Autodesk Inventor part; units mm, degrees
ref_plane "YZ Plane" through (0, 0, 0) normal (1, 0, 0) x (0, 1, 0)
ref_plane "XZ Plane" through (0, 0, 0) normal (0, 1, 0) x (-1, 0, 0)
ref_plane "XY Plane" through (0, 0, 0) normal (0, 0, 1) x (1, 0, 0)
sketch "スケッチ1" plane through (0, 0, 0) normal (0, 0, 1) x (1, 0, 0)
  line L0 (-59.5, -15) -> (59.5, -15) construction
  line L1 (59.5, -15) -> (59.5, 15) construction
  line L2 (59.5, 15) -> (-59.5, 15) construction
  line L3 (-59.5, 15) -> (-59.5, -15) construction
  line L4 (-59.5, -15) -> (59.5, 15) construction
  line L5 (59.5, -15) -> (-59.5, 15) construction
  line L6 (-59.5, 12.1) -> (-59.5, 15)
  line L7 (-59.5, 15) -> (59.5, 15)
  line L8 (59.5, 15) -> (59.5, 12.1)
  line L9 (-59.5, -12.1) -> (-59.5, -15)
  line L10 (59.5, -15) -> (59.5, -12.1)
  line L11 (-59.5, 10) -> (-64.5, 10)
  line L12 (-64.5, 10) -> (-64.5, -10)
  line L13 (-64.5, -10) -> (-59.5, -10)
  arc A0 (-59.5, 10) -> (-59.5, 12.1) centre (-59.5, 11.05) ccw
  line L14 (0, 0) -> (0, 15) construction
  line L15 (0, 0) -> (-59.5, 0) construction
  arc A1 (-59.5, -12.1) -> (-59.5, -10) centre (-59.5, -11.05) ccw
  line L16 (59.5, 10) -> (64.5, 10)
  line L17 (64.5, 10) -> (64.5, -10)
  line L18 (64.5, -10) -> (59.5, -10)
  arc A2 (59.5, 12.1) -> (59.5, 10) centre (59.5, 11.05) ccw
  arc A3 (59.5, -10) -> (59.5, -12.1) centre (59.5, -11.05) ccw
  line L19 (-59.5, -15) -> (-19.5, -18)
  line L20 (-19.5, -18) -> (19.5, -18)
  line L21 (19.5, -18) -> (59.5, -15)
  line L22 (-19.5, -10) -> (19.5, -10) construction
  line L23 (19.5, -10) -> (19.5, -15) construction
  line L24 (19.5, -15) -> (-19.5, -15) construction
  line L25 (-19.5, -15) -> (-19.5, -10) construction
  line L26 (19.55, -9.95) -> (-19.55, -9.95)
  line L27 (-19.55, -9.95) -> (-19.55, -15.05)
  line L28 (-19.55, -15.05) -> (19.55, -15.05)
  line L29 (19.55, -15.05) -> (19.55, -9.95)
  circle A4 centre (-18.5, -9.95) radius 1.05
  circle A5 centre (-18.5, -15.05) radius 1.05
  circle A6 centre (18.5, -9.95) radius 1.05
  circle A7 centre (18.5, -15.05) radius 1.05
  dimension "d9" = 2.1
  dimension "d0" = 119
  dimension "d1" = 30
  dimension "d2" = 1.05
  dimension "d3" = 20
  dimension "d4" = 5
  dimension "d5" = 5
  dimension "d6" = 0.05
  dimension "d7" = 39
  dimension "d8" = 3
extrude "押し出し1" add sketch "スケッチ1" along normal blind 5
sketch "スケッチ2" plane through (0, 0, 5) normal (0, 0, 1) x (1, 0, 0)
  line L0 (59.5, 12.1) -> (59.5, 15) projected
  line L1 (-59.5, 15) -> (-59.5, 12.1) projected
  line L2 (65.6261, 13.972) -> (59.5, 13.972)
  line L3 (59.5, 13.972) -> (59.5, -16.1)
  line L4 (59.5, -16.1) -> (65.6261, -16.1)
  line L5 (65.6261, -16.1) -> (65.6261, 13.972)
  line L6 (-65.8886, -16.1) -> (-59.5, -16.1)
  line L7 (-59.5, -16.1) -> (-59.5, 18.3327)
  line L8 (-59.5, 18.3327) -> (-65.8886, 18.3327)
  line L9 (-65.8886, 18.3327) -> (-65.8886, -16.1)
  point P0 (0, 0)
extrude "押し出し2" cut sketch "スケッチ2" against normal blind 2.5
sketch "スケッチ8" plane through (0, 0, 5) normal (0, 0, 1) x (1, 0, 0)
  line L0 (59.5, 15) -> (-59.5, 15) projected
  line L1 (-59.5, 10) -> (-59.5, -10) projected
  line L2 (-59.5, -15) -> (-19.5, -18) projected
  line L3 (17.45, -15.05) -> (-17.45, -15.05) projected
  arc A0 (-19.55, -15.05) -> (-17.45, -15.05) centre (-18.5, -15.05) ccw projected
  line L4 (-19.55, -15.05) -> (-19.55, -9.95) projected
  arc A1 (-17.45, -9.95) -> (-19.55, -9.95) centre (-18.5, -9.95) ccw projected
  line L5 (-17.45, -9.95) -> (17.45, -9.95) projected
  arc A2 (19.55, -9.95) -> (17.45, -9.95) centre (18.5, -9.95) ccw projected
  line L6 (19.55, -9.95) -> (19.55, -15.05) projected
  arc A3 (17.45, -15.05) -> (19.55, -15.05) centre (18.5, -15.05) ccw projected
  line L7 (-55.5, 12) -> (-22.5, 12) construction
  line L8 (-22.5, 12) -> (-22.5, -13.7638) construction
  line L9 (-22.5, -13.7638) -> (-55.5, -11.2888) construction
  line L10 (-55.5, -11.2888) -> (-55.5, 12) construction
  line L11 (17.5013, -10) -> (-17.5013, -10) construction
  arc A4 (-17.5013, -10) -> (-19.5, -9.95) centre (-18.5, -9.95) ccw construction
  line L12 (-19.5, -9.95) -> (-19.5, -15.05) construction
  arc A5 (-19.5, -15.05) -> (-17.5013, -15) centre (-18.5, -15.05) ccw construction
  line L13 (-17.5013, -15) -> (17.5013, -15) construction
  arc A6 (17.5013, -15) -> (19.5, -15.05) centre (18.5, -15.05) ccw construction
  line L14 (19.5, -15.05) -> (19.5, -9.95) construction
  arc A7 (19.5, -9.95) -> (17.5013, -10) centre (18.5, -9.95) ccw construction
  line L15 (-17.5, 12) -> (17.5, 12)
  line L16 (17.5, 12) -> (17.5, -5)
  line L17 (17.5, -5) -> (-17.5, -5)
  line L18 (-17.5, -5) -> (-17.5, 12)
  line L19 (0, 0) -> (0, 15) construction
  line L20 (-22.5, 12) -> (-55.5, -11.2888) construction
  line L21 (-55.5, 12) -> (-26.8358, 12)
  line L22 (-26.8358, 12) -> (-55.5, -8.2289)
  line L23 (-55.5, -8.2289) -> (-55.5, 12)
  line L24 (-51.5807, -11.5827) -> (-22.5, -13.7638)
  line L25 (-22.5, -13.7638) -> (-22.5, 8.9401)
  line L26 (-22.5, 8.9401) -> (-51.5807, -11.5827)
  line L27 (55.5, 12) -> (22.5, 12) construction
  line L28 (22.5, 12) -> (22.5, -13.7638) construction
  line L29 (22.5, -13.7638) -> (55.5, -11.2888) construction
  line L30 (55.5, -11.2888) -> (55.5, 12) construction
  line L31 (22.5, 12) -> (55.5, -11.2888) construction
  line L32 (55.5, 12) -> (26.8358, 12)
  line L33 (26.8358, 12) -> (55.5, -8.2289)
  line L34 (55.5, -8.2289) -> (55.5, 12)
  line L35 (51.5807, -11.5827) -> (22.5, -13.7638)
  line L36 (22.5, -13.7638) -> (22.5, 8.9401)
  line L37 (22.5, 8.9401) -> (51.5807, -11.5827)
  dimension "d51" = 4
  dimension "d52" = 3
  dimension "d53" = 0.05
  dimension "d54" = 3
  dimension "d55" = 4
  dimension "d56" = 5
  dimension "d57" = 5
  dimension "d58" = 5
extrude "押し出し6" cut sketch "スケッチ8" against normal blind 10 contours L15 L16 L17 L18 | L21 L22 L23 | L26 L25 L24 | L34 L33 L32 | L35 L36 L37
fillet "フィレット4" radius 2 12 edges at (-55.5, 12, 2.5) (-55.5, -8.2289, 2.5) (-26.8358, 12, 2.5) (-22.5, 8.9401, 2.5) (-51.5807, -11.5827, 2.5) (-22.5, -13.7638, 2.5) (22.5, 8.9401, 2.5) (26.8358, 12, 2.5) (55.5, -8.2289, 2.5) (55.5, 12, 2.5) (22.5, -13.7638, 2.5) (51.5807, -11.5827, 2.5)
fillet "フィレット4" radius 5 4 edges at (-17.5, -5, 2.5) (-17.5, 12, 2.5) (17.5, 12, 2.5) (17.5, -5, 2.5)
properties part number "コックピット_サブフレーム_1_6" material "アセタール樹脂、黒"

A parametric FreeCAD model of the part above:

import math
import FreeCAD as App
import Part
import Sketcher

V = App.Vector
Q = App.Units.Quantity


def edges_at(feature, points):
    """Names of the edges that pass closest to the given points."""
    edges = feature.Shape.Edges
    near = lambda p: min(range(len(edges)), key=lambda i: edges[i].distToShape(Part.Vertex(*p))[0])
    return sorted({f"Edge{near(p) + 1}" for p in points})


def add_polygon(sketch, points):
    """Adds a closed chain of lines whose ends are joined by coincident constraints."""
    first, n = sketch.GeometryCount, len(points)
    for a, b in zip(points, points[1:] + points[:1]):
        sketch.addGeometry(Part.LineSegment(App.Vector(*a, 0), App.Vector(*b, 0)), False)
    for i in range(n):
        sketch.addConstraint(Sketcher.Constraint("Coincident", first + i, 2, first + (i + 1) % n, 1))

doc = App.newDocument("Part")
body = doc.addObject("PartDesign::Body", "Body")

sketch1 = body.newObject("Sketcher::SketchObject", "Sketch")
sketch1.AttachmentSupport = (doc.getObject("XY_Plane"), [""])
sketch1.MapMode = "FlatFace"
sketch1.addGeometry([
    Part.LineSegment(V(-59.5, 15, 0), V(-59.5, 12.1, 0)),
    Part.ArcOfCircle(Part.Circle(V(-59.5, 11.05, 0), V(0, 0, 1), 1.05), math.radians(-90), math.radians(90)),
    Part.LineSegment(V(-59.5, 10, 0), V(-64.5, 10, 0)),
    Part.LineSegment(V(-64.5, 10, 0), V(-64.5, -10, 0)),
    Part.LineSegment(V(-64.5, -10, 0), V(-59.5, -10, 0)),
    Part.ArcOfCircle(Part.Circle(V(-59.5, -11.05, 0), V(0, 0, 1), 1.05), math.radians(-90), math.radians(90)),
    Part.LineSegment(V(-59.5, -12.1, 0), V(-59.5, -15, 0)),
    Part.LineSegment(V(-59.5, -15, 0), V(-19.5, -18, 0)),
    Part.LineSegment(V(-19.5, -18, 0), V(19.5, -18, 0)),
    Part.LineSegment(V(19.5, -18, 0), V(59.5, -15, 0)),
    Part.LineSegment(V(59.5, -15, 0), V(59.5, -12.1, 0)),
    Part.ArcOfCircle(Part.Circle(V(59.5, -11.05, 0), V(0, 0, 1), 1.05), math.radians(90), math.radians(270)),
    Part.LineSegment(V(59.5, -10, 0), V(64.5, -10, 0)),
    Part.LineSegment(V(64.5, -10, 0), V(64.5, 10, 0)),
    Part.LineSegment(V(64.5, 10, 0), V(59.5, 10, 0)),
    Part.ArcOfCircle(Part.Circle(V(59.5, 11.05, 0), V(0, 0, 1), 1.05), math.radians(90), math.radians(270)),
    Part.LineSegment(V(59.5, 12.1, 0), V(59.5, 15, 0)),
    Part.LineSegment(V(59.5, 15, 0), V(-59.5, 15, 0)),
    Part.ArcOfCircle(Part.Circle(V(-18.5, -9.95, 0), V(0, 0, 1), 1.05), math.radians(0), math.radians(180)),
    Part.LineSegment(V(-17.45, -9.95, 0), V(17.45, -9.95, 0)),
    Part.ArcOfCircle(Part.Circle(V(18.5, -9.95, 0), V(0, 0, 1), 1.05), math.radians(0), math.radians(180)),
    Part.LineSegment(V(19.55, -9.95, 0), V(19.55, -15.05, 0)),
    Part.ArcOfCircle(Part.Circle(V(18.5, -15.05, 0), V(0, 0, 1), 1.05), math.radians(180), math.radians(360)),
    Part.LineSegment(V(17.45, -15.05, 0), V(-17.45, -15.05, 0)),
    Part.ArcOfCircle(Part.Circle(V(-18.5, -15.05, 0), V(0, 0, 1), 1.05), math.radians(180), math.radians(360)),
    Part.LineSegment(V(-19.55, -15.05, 0), V(-19.55, -9.95, 0)),
], False)
sketch1.addConstraint([
    Sketcher.Constraint("Coincident", 0, 2, 1, 2),
    Sketcher.Constraint("Tangent", 1, 1, 2, 1),
    Sketcher.Constraint("Coincident", 2, 2, 3, 1),
    Sketcher.Constraint("Coincident", 3, 2, 4, 1),
    Sketcher.Constraint("Tangent", 4, 2, 5, 2),
    Sketcher.Constraint("Coincident", 5, 1, 6, 1),
    Sketcher.Constraint("Coincident", 6, 2, 7, 1),
    Sketcher.Constraint("Coincident", 7, 2, 8, 1),
    Sketcher.Constraint("Coincident", 8, 2, 9, 1),
    Sketcher.Constraint("Coincident", 9, 2, 10, 1),
    Sketcher.Constraint("Coincident", 10, 2, 11, 2),
    Sketcher.Constraint("Tangent", 11, 1, 12, 1),
    Sketcher.Constraint("Coincident", 12, 2, 13, 1),
    Sketcher.Constraint("Coincident", 13, 2, 14, 1),
    Sketcher.Constraint("Tangent", 14, 2, 15, 2),
    Sketcher.Constraint("Coincident", 15, 1, 16, 1),
    Sketcher.Constraint("Coincident", 16, 2, 17, 1),
    Sketcher.Constraint("Coincident", 17, 2, 0, 1),
    Sketcher.Constraint("Coincident", 18, 1, 19, 1),
    Sketcher.Constraint("Coincident", 19, 2, 20, 2),
    Sketcher.Constraint("Tangent", 20, 1, 21, 1),
    Sketcher.Constraint("Tangent", 21, 2, 22, 2),
    Sketcher.Constraint("Coincident", 22, 1, 23, 1),
    Sketcher.Constraint("Coincident", 23, 2, 24, 2),
    Sketcher.Constraint("Tangent", 24, 1, 25, 1),
    Sketcher.Constraint("Tangent", 25, 2, 18, 2),
    Sketcher.Constraint("Vertical", 0),
    Sketcher.Constraint("Horizontal", 2),
    Sketcher.Constraint("Vertical", 3),
    Sketcher.Constraint("Horizontal", 4),
    Sketcher.Constraint("Vertical", 6),
    Sketcher.Constraint("Horizontal", 8),
    Sketcher.Constraint("Vertical", 10),
    Sketcher.Constraint("Horizontal", 12),
    Sketcher.Constraint("Vertical", 13),
    Sketcher.Constraint("Horizontal", 14),
    Sketcher.Constraint("Vertical", 16),
    Sketcher.Constraint("Horizontal", 17),
    Sketcher.Constraint("Horizontal", 19),
    Sketcher.Constraint("Vertical", 21),
    Sketcher.Constraint("Horizontal", 23),
    Sketcher.Constraint("Vertical", 25),
    Sketcher.Constraint("Equal", 1, 5),
    Sketcher.Constraint("Equal", 5, 11),
    Sketcher.Constraint("Equal", 11, 15),
    Sketcher.Constraint("Equal", 15, 18),
    Sketcher.Constraint("Equal", 18, 20),
    Sketcher.Constraint("Equal", 20, 22),
    Sketcher.Constraint("Equal", 22, 24),
    Sketcher.Constraint("Symmetric", 1, 3, 11, 3, -1, 1),
    Sketcher.Constraint("Symmetric", 5, 3, 15, 3, -1, 1),
    Sketcher.Constraint("Symmetric", 6, 2, 16, 2, -1, 1),
    Sketcher.Constraint("Symmetric", 9, 2, 17, 2, -1, 1),
    Sketcher.Constraint("Symmetric", 5, 3, 11, 3, -2),
    Sketcher.Constraint("Symmetric", 18, 3, 20, 3, -2),
    Sketcher.Constraint("Horizontal", 22, 3, 24, 3),
    Sketcher.Constraint("Horizontal", 20, 3, 18, 1),
    Sketcher.Constraint("Horizontal", 21, 2, 22, 1),
    Sketcher.Constraint("Vertical", 5, 3, 0, 2),
    Sketcher.Constraint("Vertical", 4, 2, 5, 1),
    Sketcher.Constraint("Equal", 4, 12),
    Sketcher.Constraint("Equal", 7, 9),
    Sketcher.Constraint("DistanceX", 2, 2, 2, 1, 5.0),
    Sketcher.Constraint("DistanceX", 8, 1, 8, 2, 39.0),
    Sketcher.Constraint("DistanceX", 17, 2, 17, 1, 119.0),
    Sketcher.Constraint("DistanceY", 3, 2, 3, 1, 20.0),
    Sketcher.Constraint("Radius", 1, 1.05),
    Sketcher.Constraint("DistanceY", 6, 2, 4, 2, 5.0),
    Sketcher.Constraint("DistanceY", 7, 2, 6, 2, 3.0),
    Sketcher.Constraint("DistanceY", 22, 3, 9, 2, 0.05),
    Sketcher.Constraint("DistanceX", 8, 2, 20, 1, 0.05),
    Sketcher.Constraint("DistanceY", 21, 2, 21, 1, 5.1),
])
pad1 = body.newObject("PartDesign::Pad", "Pad")
pad1.Profile = sketch1
pad1.Length = 5

sketch2 = body.newObject("Sketcher::SketchObject", "Sketch001")
sketch2.AttachmentSupport = (doc.getObject("XY_Plane"), [""])
sketch2.MapMode = "FlatFace"
sketch2.AttachmentOffset = App.Placement(V(0, 0, 5), App.Rotation())
add_polygon(sketch2, [(59.5, 13.972), (59.5, -16.1), (65.6261, -16.1), (65.6261, 13.972)])
add_polygon(sketch2, [(-59.5, -16.1), (-59.5, 18.3327), (-65.8886, 18.3327), (-65.8886, -16.1)])
sketch2.addConstraint([
    Sketcher.Constraint("Vertical", 0),
    Sketcher.Constraint("Horizontal", 1),
    Sketcher.Constraint("Vertical", 2),
    Sketcher.Constraint("Horizontal", 3),
    Sketcher.Constraint("Vertical", 4),
    Sketcher.Constraint("Horizontal", 5),
    Sketcher.Constraint("Vertical", 6),
    Sketcher.Constraint("Horizontal", 7),
    Sketcher.Constraint("Symmetric", 0, 2, 7, 2, -2),
    Sketcher.Constraint("DistanceX", 4, 2, 3, 2, 119.0),
    Sketcher.Constraint("DistanceY", 0, 2, -1, 1, 16.1),
    Sketcher.Constraint("DistanceX", 1, 1, 1, 2, 6.126),
    Sketcher.Constraint("DistanceY", 0, 2, 0, 1, 30.072),
    Sketcher.Constraint("DistanceX", 5, 2, 5, 1, 6.3886),
    Sketcher.Constraint("DistanceY", 4, 1, 4, 2, 34.4327),
])
pocket1 = body.newObject("PartDesign::Pocket", "Pocket")
pocket1.Profile = sketch2
pocket1.Length = 2.5

sketch3 = body.newObject("Sketcher::SketchObject", "Sketch002")
sketch3.AttachmentSupport = (doc.getObject("XY_Plane"), [""])
sketch3.MapMode = "FlatFace"
sketch3.AttachmentOffset = App.Placement(V(0, 0, 5), App.Rotation())
add_polygon(sketch3, [(17.5, 12), (-17.5, 12), (-17.5, -5), (17.5, -5)])
add_polygon(sketch3, [(-26.8358, 12), (-55.5, 12), (-55.5, -8.2289)])
add_polygon(sketch3, [(-22.5, 8.9401), (-51.5807, -11.5827), (-22.5, -13.7638)])
add_polygon(sketch3, [(55.5, -8.2289), (55.5, 12), (26.8358, 12)])
add_polygon(sketch3, [(22.5, -13.7638), (51.5807, -11.5827), (22.5, 8.9401)])
sketch3.addConstraint([
    Sketcher.Constraint("Horizontal", 0),
    Sketcher.Constraint("Vertical", 1),
    Sketcher.Constraint("Horizontal", 2),
    Sketcher.Constraint("Vertical", 3),
    Sketcher.Constraint("Horizontal", 4),
    Sketcher.Constraint("Vertical", 5),
    Sketcher.Constraint("Vertical", 9),
    Sketcher.Constraint("Vertical", 10),
    Sketcher.Constraint("Horizontal", 11),
    Sketcher.Constraint("Vertical", 15),
    Sketcher.Constraint("Symmetric", 4, 2, 10, 2, -2),
    Sketcher.Constraint("Symmetric", 7, 2, 13, 2, -2),
    Sketcher.Constraint("Symmetric", 9, 2, 14, 2, -2),
    Sketcher.Constraint("Parallel", 6, 7),
    Sketcher.Constraint("Parallel", 12, 14),
    Sketcher.Constraint("Horizontal", 3, 2, 4, 2),
    Sketcher.Constraint("Horizontal", 5, 2, 12, 2),
    Sketcher.Constraint("Horizontal", 8, 2, 15, 2),
    Sketcher.Constraint("DistanceY", 1, 2, -1, 1, 5.0),
    Sketcher.Constraint("DistanceX", 8, 2, 1, 2, 5.0),
    Sketcher.Constraint("DistanceX", 3, 2, 14, 2, 5.0),
    Sketcher.Constraint("DistanceX", 0, 2, 0, 1, 35.0),
    Sketcher.Constraint("DistanceY", 1, 2, 1, 1, 17.0),
    Sketcher.Constraint("DistanceX", 4, 2, 0, 2, 38.0),
    Sketcher.Constraint("Angle", 8, Q("-4.2892 deg")),
    Sketcher.Constraint("DistanceY", 5, 2, 5, 1, 20.229),
    Sketcher.Constraint("DistanceY", 9, 1, 9, 2, 22.704),
    Sketcher.Constraint("DistanceY", -1, 1, 9, 2, 8.94),
    Sketcher.Constraint("DistanceX", 4, 2, 4, 1, 28.6642),
])
pocket2 = body.newObject("PartDesign::Pocket", "Pocket001")
pocket2.Profile = sketch3
pocket2.Length = 10
doc.recompute()

fillet = body.newObject("PartDesign::Fillet", "Fillet")
fillet.Base = (pocket2, edges_at(pocket2, [
    (-55.5, 12, 2.5),
    (-55.5, -8.229, 2.5),
    (-26.836, 12, 2.5),
    (-22.5, 8.94, 2.5),
    (-51.581, -11.583, 2.5),
    (-22.5, -13.764, 2.5),
    (22.5, 8.94, 2.5),
    (26.836, 12, 2.5),
    (55.5, -8.229, 2.5),
    (55.5, 12, 2.5),
    (22.5, -13.764, 2.5),
    (51.581, -11.583, 2.5),
]))
fillet.Radius = 2
doc.recompute()

fillet2 = body.newObject("PartDesign::Fillet", "Fillet001")
fillet2.Base = (fillet, edges_at(fillet, [
    (-17.5, -5, 2.5),
    (-17.5, 12, 2.5),
    (17.5, 12, 2.5),
    (17.5, -5, 2.5),
]))
fillet2.Radius = 5

doc.recompute()
